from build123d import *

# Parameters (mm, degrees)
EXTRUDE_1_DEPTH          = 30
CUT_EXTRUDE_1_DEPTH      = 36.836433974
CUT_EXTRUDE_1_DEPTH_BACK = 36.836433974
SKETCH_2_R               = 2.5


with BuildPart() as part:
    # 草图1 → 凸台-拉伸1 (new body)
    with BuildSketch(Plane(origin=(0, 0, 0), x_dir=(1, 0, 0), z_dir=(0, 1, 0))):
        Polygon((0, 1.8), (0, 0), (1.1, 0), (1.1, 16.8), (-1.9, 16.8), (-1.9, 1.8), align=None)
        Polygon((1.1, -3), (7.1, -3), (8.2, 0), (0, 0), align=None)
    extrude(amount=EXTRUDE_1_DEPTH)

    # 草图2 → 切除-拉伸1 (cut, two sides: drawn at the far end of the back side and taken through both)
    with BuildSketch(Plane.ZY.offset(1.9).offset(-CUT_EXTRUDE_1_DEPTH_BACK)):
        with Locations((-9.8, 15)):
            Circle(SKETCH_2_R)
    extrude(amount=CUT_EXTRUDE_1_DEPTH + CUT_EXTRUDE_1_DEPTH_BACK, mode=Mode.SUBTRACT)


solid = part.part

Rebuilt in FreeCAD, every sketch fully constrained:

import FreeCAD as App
import Part
import Sketcher

V = App.Vector

doc = App.newDocument("Part")
body = doc.addObject("PartDesign::Body", "Body")

sketch1 = body.newObject("Sketcher::SketchObject", "Sketch")
sketch1.AttachmentSupport = (doc.getObject("XZ_Plane"), [""])
sketch1.MapMode = "FlatFace"
sketch1.addGeometry(Part.LineSegment(V(0, -1.8, 0), V(0, 0, 0)), False)
sketch1.addGeometry(Part.LineSegment(V(0, 0, 0), V(1.1, 3, 0)), False)
sketch1.addGeometry(Part.LineSegment(V(1.1, 3, 0), V(7.1, 3, 0)), False)
sketch1.addGeometry(Part.LineSegment(V(7.1, 3, 0), V(8.2, 0, 0)), False)
sketch1.addGeometry(Part.LineSegment(V(8.2, 0, 0), V(1.1, 0, 0)), False)
sketch1.addGeometry(Part.LineSegment(V(1.1, 0, 0), V(1.1, -16.8, 0)), False)
sketch1.addGeometry(Part.LineSegment(V(1.1, -16.8, 0), V(-1.9, -16.8, 0)), False)
sketch1.addGeometry(Part.LineSegment(V(-1.9, -16.8, 0), V(-1.9, -1.8, 0)), False)
sketch1.addGeometry(Part.LineSegment(V(-1.9, -1.8, 0), V(0, -1.8, 0)), False)
sketch1.addConstraint(Sketcher.Constraint("Coincident", 0, 2, 1, 1))
sketch1.addConstraint(Sketcher.Constraint("Coincident", 1, 2, 2, 1))
sketch1.addConstraint(Sketcher.Constraint("Coincident", 2, 2, 3, 1))
sketch1.addConstraint(Sketcher.Constraint("Coincident", 3, 2, 4, 1))
sketch1.addConstraint(Sketcher.Constraint("Coincident", 4, 2, 5, 1))
sketch1.addConstraint(Sketcher.Constraint("Coincident", 5, 2, 6, 1))
sketch1.addConstraint(Sketcher.Constraint("Coincident", 6, 2, 7, 1))
sketch1.addConstraint(Sketcher.Constraint("Coincident", 7, 2, 8, 1))
sketch1.addConstraint(Sketcher.Constraint("Coincident", 8, 2, 0, 1))
sketch1.addConstraint(Sketcher.Constraint("Vertical", 0))
sketch1.addConstraint(Sketcher.Constraint("Horizontal", 2))
sketch1.addConstraint(Sketcher.Constraint("Horizontal", 4))
sketch1.addConstraint(Sketcher.Constraint("Vertical", 5))
sketch1.addConstraint(Sketcher.Constraint("Horizontal", 6))
sketch1.addConstraint(Sketcher.Constraint("Vertical", 7))
sketch1.addConstraint(Sketcher.Constraint("Horizontal", 8))
sketch1.addConstraint(Sketcher.Constraint("Coincident", 0, 2, -1, 1))
sketch1.addConstraint(Sketcher.Constraint("PointOnObject", 3, 2, -1))
sketch1.addConstraint(Sketcher.Constraint("Vertical", 1, 2, 4, 2))
sketch1.addConstraint(Sketcher.Constraint("Equal", 1, 3))
sketch1.addConstraint(Sketcher.Constraint("DistanceX", 2, 1, 2, 2, 6.0))
sketch1.addConstraint(Sketcher.Constraint("DistanceX", 6, 2, 6, 1, 3.0))
sketch1.addConstraint(Sketcher.Constraint("DistanceY", 7, 1, 7, 2, 15.0))
sketch1.addConstraint(Sketcher.Constraint("DistanceX", 4, 2, 4, 1, 7.1))
sketch1.addConstraint(Sketcher.Constraint("DistanceY", 0, 1, 0, 2, 1.8))
sketch1.addConstraint(Sketcher.Constraint("DistanceY", -1, 1, 1, 2, 3.0))
pad1 = body.newObject("PartDesign::Pad", "Pad")
pad1.Profile = sketch1
pad1.Length = 30
pad1.Reversed = True

sketch2 = body.newObject("Sketcher::SketchObject", "Sketch001")
sketch2.AttachmentSupport = (doc.getObject("YZ_Plane"), [""])
sketch2.MapMode = "FlatFace"
sketch2.AttachmentOffset = App.Placement(V(0, 0, -1.9), App.Rotation())
sketch2.addGeometry(Part.Circle(V(15, -9.8, 0), V(0, 0, 1), 2.5), False)
sketch2.addConstraint(Sketcher.Constraint("Diameter", 0, 5.0))
sketch2.addConstraint(Sketcher.Constraint("DistanceX", -1, 1, 0, 3, 15.0))
sketch2.addConstraint(Sketcher.Constraint("DistanceY", 0, 3, -1, 1, 9.8))
pocket1 = body.newObject("PartDesign::Pocket", "Pocket")
pocket1.Profile = sketch2
pocket1.Type = "ThroughAll"
pocket1.Midplane = True

doc.recompute()
